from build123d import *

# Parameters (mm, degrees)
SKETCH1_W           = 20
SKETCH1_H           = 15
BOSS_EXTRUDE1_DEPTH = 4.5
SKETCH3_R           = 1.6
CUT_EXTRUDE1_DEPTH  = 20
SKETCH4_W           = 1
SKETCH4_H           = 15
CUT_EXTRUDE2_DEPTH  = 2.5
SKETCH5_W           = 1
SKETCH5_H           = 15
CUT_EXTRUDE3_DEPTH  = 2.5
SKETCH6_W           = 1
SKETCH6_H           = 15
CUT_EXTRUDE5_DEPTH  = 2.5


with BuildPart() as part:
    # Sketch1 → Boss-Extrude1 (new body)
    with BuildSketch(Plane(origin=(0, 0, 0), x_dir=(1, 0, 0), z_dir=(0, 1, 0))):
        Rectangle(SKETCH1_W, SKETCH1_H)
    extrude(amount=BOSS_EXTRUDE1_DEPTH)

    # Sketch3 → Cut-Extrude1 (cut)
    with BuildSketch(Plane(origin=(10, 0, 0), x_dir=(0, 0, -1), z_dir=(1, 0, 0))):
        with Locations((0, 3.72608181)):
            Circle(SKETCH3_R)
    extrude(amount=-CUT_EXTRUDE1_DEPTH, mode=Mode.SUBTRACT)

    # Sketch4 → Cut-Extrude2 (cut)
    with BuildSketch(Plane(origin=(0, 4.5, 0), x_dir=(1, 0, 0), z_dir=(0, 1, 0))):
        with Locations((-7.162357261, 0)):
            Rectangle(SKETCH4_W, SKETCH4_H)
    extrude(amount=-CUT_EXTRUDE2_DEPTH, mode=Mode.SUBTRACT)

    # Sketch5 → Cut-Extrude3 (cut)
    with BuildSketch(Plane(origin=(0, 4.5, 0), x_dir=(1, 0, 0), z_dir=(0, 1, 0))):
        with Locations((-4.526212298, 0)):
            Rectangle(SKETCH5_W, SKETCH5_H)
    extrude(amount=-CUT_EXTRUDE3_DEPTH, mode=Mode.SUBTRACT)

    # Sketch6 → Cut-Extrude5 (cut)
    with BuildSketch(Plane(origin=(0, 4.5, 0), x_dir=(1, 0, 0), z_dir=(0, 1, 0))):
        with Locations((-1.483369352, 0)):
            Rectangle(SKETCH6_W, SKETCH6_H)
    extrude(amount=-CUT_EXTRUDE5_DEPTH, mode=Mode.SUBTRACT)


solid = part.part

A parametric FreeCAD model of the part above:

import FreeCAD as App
import Part
import Sketcher
Q = App.Units.Quantity

doc = App.newDocument("Part")
body = doc.addObject("PartDesign::Body", "Body")

# Sketch on XZ plane
sketch1 = body.newObject("Sketcher::SketchObject", "Sketch")
sketch1.AttachmentSupport = (doc.getObject("XZ_Plane"), [""])
sketch1.MapMode = "FlatFace"
sketch1.addGeometry([
    Part.LineSegment(App.Vector(-10, -8, 0), App.Vector(-10, 8, 0)),
    Part.LineSegment(App.Vector(-10, 8, 0), App.Vector(10, 8, 0)),
    Part.LineSegment(App.Vector(10, 8, 0), App.Vector(10, -8, 0)),
    Part.LineSegment(App.Vector(10, -8, 0), App.Vector(-10, -8, 0)),
], False)
sketch1.addConstraint([
    Sketcher.Constraint("Coincident", 0, 2, 1, 1),
    Sketcher.Constraint("Coincident", 1, 2, 2, 1),
    Sketcher.Constraint("Coincident", 2, 2, 3, 1),
    Sketcher.Constraint("Coincident", 3, 2, 0, 1),
    Sketcher.Constraint("Vertical", 0),
    Sketcher.Constraint("Horizontal", 1),
    Sketcher.Constraint("Vertical", 2),
    Sketcher.Constraint("Horizontal", 3),
    Sketcher.Constraint("Symmetric", 0, 2, 2, 2, -1, 1),
    Sketcher.Constraint("DistanceX", 1, 1, 1, 2, Q("20 mm")),
    Sketcher.Constraint("DistanceY", 0, 1, 0, 2, Q("15 mm")),
])
pad1 = body.newObject("PartDesign::Pad", "Pad")
pad1.Profile = sketch1
pad1.Length = 4.5
pad1.Reversed = True

# Sketch on YZ plane
sketch2 = body.newObject("Sketcher::SketchObject", "Sketch001")
sketch2.AttachmentSupport = (doc.getObject("YZ_Plane"), [""])
sketch2.MapMode = "FlatFace"
sketch2.AttachmentOffset = App.Placement(App.Vector(0, 0, 10), App.Rotation())
sketch2.addGeometry(Part.Circle(App.Vector(3.7, 0, 0), App.Vector(0, 0, 1), 1.6), False)
sketch2.addConstraint([
    Sketcher.Constraint("PointOnObject", 0, 3, -1),
    Sketcher.Constraint("Diameter", 0, Q("3.2 mm")),
    Sketcher.Constraint("DistanceX", -1, 1, 0, 3, Q("3.726082 mm")),
])
pocket1 = body.newObject("PartDesign::Pocket", "Pocket")
pocket1.Profile = sketch2
pocket1.Length = 20

# Sketch on XZ plane
sketch3 = body.newObject("Sketcher::SketchObject", "Sketch002")
sketch3.AttachmentSupport = (doc.getObject("XZ_Plane"), [""])
sketch3.MapMode = "FlatFace"
sketch3.AttachmentOffset = App.Placement(App.Vector(0, 0, -4.5), App.Rotation())
sketch3.addGeometry([
    Part.LineSegment(App.Vector(-7.7, -7.5, 0), App.Vector(-7.7, 7.5, 0)),
    Part.LineSegment(App.Vector(-7.7, 7.5, 0), App.Vector(-6.7, 7.5, 0)),
    Part.LineSegment(App.Vector(-6.7, 7.5, 0), App.Vector(-6.7, -7.5, 0)),
    Part.LineSegment(App.Vector(-6.7, -7.5, 0), App.Vector(-7.7, -7.5, 0)),
], False)
sketch3.addConstraint([
    Sketcher.Constraint("Coincident", 0, 2, 1, 1),
    Sketcher.Constraint("Coincident", 1, 2, 2, 1),
    Sketcher.Constraint("Coincident", 2, 2, 3, 1),
    Sketcher.Constraint("Coincident", 3, 2, 0, 1),
    Sketcher.Constraint("Vertical", 0),
    Sketcher.Constraint("Horizontal", 1),
    Sketcher.Constraint("Vertical", 2),
    Sketcher.Constraint("Horizontal", 3),
    Sketcher.Constraint("DistanceX", 1, 1, 1, 2, Q("1 mm")),
    Sketcher.Constraint("DistanceY", 0, 1, 0, 2, Q("15 mm")),
    Sketcher.Constraint("DistanceY", -1, 1, 0, 2, Q("7.5 mm")),
    Sketcher.Constraint("DistanceX", 0, 2, -1, 1, Q("7.662357 mm")),
])
pocket2 = body.newObject("PartDesign::Pocket", "Pocket001")
pocket2.Profile = sketch3
pocket2.Length = 2.5
pocket2.Reversed = True

# Sketch on XZ plane
sketch4 = body.newObject("Sketcher::SketchObject", "Sketch003")
sketch4.AttachmentSupport = (doc.getObject("XZ_Plane"), [""])
sketch4.MapMode = "FlatFace"
sketch4.AttachmentOffset = App.Placement(App.Vector(0, 0, -4.5), App.Rotation())
sketch4.addGeometry([
    Part.LineSegment(App.Vector(-5, -7.5, 0), App.Vector(-5, 7.5, 0)),
    Part.LineSegment(App.Vector(-5, 7.5, 0), App.Vector(-4, 7.5, 0)),
    Part.LineSegment(App.Vector(-4, 7.5, 0), App.Vector(-4, -7.5, 0)),
    Part.LineSegment(App.Vector(-4, -7.5, 0), App.Vector(-5, -7.5, 0)),
], False)
sketch4.addConstraint([
    Sketcher.Constraint("Coincident", 0, 2, 1, 1),
    Sketcher.Constraint("Coincident", 1, 2, 2, 1),
    Sketcher.Constraint("Coincident", 2, 2, 3, 1),
    Sketcher.Constraint("Coincident", 3, 2, 0, 1),
    Sketcher.Constraint("Vertical", 0),
    Sketcher.Constraint("Horizontal", 1),
    Sketcher.Constraint("Vertical", 2),
    Sketcher.Constraint("Horizontal", 3),
    Sketcher.Constraint("DistanceX", 1, 1, 1, 2, Q("1 mm")),
    Sketcher.Constraint("DistanceY", 0, 1, 0, 2, Q("15 mm")),
    Sketcher.Constraint("DistanceY", -1, 1, 0, 2, Q("7.5 mm")),
    Sketcher.Constraint("DistanceX", 0, 2, -1, 1, Q("5.026212 mm")),
])
pocket3 = body.newObject("PartDesign::Pocket", "Pocket002")
pocket3.Profile = sketch4
pocket3.Length = 2.5
pocket3.Reversed = True

# Sketch on XZ plane
sketch5 = body.newObject("Sketcher::SketchObject", "Sketch004")
sketch5.AttachmentSupport = (doc.getObject("XZ_Plane"), [""])
sketch5.MapMode = "FlatFace"
sketch5.AttachmentOffset = App.Placement(App.Vector(0, 0, -4.5), App.Rotation())
sketch5.addGeometry([
    Part.LineSegment(App.Vector(-2, -7.5, 0), App.Vector(-2, 7.5, 0)),
    Part.LineSegment(App.Vector(-2, 7.5, 0), App.Vector(-1, 7.5, 0)),
    Part.LineSegment(App.Vector(-1, 7.5, 0), App.Vector(-1, -7.5, 0)),
    Part.LineSegment(App.Vector(-1, -7.5, 0), App.Vector(-2, -7.5, 0)),
], False)
sketch5.addConstraint([
    Sketcher.Constraint("Coincident", 0, 2, 1, 1),
    Sketcher.Constraint("Coincident", 1, 2, 2, 1),
    Sketcher.Constraint("Coincident", 2, 2, 3, 1),
    Sketcher.Constraint("Coincident", 3, 2, 0, 1),
    Sketcher.Constraint("Vertical", 0),
    Sketcher.Constraint("Horizontal", 1),
    Sketcher.Constraint("Vertical", 2),
    Sketcher.Constraint("Horizontal", 3),
    Sketcher.Constraint("DistanceX", 1, 1, 1, 2, Q("1 mm")),
    Sketcher.Constraint("DistanceY", 0, 1, 0, 2, Q("15 mm")),
    Sketcher.Constraint("DistanceY", -1, 1, 0, 2, Q("7.5 mm")),
    Sketcher.Constraint("DistanceX", 0, 2, -1, 1, Q("1.983369 mm")),
])
pocket4 = body.newObject("PartDesign::Pocket", "Pocket003")
pocket4.Profile = sketch5
pocket4.Length = 2.5
pocket4.Reversed = True

doc.recompute()
